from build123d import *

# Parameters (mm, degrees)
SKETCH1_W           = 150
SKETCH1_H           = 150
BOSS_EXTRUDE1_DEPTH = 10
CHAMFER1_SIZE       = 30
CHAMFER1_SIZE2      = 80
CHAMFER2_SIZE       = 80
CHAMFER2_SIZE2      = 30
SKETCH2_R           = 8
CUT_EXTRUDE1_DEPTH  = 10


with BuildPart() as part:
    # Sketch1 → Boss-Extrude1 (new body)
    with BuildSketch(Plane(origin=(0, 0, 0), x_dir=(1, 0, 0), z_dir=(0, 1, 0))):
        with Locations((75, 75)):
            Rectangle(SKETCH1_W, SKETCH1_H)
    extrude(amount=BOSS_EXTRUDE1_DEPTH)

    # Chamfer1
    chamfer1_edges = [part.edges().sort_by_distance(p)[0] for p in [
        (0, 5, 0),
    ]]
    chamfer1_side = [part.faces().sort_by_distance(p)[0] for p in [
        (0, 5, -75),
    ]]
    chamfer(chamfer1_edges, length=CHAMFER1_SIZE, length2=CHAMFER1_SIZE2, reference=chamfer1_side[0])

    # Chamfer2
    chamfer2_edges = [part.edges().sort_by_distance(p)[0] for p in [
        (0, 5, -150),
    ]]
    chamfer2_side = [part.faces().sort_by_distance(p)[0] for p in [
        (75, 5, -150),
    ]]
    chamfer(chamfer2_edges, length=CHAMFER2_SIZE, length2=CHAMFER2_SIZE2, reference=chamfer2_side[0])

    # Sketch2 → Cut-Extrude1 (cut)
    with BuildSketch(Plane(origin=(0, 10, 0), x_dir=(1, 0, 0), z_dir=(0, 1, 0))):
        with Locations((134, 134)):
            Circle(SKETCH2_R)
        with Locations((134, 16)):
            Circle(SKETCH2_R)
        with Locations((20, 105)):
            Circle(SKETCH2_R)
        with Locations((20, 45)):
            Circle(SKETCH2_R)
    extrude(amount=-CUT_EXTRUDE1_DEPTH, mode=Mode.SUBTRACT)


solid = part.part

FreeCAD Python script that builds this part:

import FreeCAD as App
import Part
import Sketcher

V = App.Vector


def edges_at(feature, points):
    """Names of the edges that pass closest to the given points."""
    edges = feature.Shape.Edges
    near = lambda p: min(range(len(edges)), key=lambda i: edges[i].distToShape(Part.Vertex(*p))[0])
    return sorted({f"Edge{near(p) + 1}" for p in points})

doc = App.newDocument("Part")
body = doc.addObject("PartDesign::Body", "Body")

# Sketch on XZ plane
sketch1 = body.newObject("Sketcher::SketchObject", "Sketch")
sketch1.AttachmentSupport = (doc.getObject("XZ_Plane"), [""])
sketch1.MapMode = "FlatFace"
sketch1.addGeometry([
    Part.LineSegment(V(0, -150, 0), V(0, 0, 0)),
    Part.LineSegment(V(0, 0, 0), V(150, 0, 0)),
    Part.LineSegment(V(150, 0, 0), V(150, -150, 0)),
    Part.LineSegment(V(150, -150, 0), V(0, -150, 0)),
], False)
sketch1.addConstraint([
    Sketcher.Constraint("Coincident", 0, 2, 1, 1),
    Sketcher.Constraint("Coincident", 1, 2, 2, 1),
    Sketcher.Constraint("Coincident", 2, 2, 3, 1),
    Sketcher.Constraint("Coincident", 3, 2, 0, 1),
    Sketcher.Constraint("Vertical", 0),
    Sketcher.Constraint("Horizontal", 1),
    Sketcher.Constraint("Vertical", 2),
    Sketcher.Constraint("Horizontal", 3),
    Sketcher.Constraint("Coincident", 0, 2, -1, 1),
    Sketcher.Constraint("Equal", 3, 0),
    Sketcher.Constraint("DistanceX", 1, 1, 1, 2, 150.0),
])
pad1 = body.newObject("PartDesign::Pad", "Pad")
pad1.Profile = sketch1
pad1.Length = 10
pad1.Reversed = True
doc.recompute()

chamfer = body.newObject("PartDesign::Chamfer", "Chamfer")
chamfer.Base = (pad1, edges_at(pad1, [(0, 5, 0)]))
chamfer.ChamferType = "Two distances"
chamfer.Size = 30
chamfer.Size2 = 80
doc.recompute()

chamfer2 = body.newObject("PartDesign::Chamfer", "Chamfer001")
chamfer2.Base = (chamfer, edges_at(chamfer, [(0, 5, -150)]))
chamfer2.ChamferType = "Two distances"
chamfer2.Size = 80
chamfer2.Size2 = 30
chamfer2.FlipDirection = True

# Sketch on XZ plane
sketch2 = body.newObject("Sketcher::SketchObject", "Sketch001")
sketch2.AttachmentSupport = (doc.getObject("XZ_Plane"), [""])
sketch2.MapMode = "FlatFace"
sketch2.AttachmentOffset = App.Placement(V(0, 0, -10), App.Rotation())
sketch2.addGeometry([
    Part.Circle(V(134, -134, 0), V(0, 0, 1), 8),
    Part.Circle(V(134, -16, 0), V(0, 0, 1), 8),
    Part.Circle(V(20, -105, 0), V(0, 0, 1), 8),
    Part.Circle(V(20, -45, 0), V(0, 0, 1), 8),
], False)
sketch2.addConstraint([
    Sketcher.Constraint("Equal", 0, 1),
    Sketcher.Constraint("Equal", 1, 2),
    Sketcher.Constraint("Equal", 2, 3),
    Sketcher.Constraint("Vertical", 0, 3, 1, 3),
    Sketcher.Constraint("Vertical", 2, 3, 3, 3),
    Sketcher.Constraint("Diameter", 0, 16.0),
    Sketcher.Constraint("DistanceX", -1, 1, 0, 3, 134.0),
    Sketcher.Constraint("DistanceY", 0, 3, -1, 1, 134.0),
    Sketcher.Constraint("DistanceY", 1, 3, -1, 1, 16.0),
    Sketcher.Constraint("DistanceX", -1, 1, 2, 3, 20.0),
    Sketcher.Constraint("DistanceY", 2, 3, -1, 1, 105.0),
    Sketcher.Constraint("DistanceY", 3, 3, -1, 1, 45.0),
])
pocket1 = body.newObject("PartDesign::Pocket", "Pocket")
pocket1.Profile = sketch2
pocket1.Length = 10
pocket1.Reversed = True

doc.recompute()
